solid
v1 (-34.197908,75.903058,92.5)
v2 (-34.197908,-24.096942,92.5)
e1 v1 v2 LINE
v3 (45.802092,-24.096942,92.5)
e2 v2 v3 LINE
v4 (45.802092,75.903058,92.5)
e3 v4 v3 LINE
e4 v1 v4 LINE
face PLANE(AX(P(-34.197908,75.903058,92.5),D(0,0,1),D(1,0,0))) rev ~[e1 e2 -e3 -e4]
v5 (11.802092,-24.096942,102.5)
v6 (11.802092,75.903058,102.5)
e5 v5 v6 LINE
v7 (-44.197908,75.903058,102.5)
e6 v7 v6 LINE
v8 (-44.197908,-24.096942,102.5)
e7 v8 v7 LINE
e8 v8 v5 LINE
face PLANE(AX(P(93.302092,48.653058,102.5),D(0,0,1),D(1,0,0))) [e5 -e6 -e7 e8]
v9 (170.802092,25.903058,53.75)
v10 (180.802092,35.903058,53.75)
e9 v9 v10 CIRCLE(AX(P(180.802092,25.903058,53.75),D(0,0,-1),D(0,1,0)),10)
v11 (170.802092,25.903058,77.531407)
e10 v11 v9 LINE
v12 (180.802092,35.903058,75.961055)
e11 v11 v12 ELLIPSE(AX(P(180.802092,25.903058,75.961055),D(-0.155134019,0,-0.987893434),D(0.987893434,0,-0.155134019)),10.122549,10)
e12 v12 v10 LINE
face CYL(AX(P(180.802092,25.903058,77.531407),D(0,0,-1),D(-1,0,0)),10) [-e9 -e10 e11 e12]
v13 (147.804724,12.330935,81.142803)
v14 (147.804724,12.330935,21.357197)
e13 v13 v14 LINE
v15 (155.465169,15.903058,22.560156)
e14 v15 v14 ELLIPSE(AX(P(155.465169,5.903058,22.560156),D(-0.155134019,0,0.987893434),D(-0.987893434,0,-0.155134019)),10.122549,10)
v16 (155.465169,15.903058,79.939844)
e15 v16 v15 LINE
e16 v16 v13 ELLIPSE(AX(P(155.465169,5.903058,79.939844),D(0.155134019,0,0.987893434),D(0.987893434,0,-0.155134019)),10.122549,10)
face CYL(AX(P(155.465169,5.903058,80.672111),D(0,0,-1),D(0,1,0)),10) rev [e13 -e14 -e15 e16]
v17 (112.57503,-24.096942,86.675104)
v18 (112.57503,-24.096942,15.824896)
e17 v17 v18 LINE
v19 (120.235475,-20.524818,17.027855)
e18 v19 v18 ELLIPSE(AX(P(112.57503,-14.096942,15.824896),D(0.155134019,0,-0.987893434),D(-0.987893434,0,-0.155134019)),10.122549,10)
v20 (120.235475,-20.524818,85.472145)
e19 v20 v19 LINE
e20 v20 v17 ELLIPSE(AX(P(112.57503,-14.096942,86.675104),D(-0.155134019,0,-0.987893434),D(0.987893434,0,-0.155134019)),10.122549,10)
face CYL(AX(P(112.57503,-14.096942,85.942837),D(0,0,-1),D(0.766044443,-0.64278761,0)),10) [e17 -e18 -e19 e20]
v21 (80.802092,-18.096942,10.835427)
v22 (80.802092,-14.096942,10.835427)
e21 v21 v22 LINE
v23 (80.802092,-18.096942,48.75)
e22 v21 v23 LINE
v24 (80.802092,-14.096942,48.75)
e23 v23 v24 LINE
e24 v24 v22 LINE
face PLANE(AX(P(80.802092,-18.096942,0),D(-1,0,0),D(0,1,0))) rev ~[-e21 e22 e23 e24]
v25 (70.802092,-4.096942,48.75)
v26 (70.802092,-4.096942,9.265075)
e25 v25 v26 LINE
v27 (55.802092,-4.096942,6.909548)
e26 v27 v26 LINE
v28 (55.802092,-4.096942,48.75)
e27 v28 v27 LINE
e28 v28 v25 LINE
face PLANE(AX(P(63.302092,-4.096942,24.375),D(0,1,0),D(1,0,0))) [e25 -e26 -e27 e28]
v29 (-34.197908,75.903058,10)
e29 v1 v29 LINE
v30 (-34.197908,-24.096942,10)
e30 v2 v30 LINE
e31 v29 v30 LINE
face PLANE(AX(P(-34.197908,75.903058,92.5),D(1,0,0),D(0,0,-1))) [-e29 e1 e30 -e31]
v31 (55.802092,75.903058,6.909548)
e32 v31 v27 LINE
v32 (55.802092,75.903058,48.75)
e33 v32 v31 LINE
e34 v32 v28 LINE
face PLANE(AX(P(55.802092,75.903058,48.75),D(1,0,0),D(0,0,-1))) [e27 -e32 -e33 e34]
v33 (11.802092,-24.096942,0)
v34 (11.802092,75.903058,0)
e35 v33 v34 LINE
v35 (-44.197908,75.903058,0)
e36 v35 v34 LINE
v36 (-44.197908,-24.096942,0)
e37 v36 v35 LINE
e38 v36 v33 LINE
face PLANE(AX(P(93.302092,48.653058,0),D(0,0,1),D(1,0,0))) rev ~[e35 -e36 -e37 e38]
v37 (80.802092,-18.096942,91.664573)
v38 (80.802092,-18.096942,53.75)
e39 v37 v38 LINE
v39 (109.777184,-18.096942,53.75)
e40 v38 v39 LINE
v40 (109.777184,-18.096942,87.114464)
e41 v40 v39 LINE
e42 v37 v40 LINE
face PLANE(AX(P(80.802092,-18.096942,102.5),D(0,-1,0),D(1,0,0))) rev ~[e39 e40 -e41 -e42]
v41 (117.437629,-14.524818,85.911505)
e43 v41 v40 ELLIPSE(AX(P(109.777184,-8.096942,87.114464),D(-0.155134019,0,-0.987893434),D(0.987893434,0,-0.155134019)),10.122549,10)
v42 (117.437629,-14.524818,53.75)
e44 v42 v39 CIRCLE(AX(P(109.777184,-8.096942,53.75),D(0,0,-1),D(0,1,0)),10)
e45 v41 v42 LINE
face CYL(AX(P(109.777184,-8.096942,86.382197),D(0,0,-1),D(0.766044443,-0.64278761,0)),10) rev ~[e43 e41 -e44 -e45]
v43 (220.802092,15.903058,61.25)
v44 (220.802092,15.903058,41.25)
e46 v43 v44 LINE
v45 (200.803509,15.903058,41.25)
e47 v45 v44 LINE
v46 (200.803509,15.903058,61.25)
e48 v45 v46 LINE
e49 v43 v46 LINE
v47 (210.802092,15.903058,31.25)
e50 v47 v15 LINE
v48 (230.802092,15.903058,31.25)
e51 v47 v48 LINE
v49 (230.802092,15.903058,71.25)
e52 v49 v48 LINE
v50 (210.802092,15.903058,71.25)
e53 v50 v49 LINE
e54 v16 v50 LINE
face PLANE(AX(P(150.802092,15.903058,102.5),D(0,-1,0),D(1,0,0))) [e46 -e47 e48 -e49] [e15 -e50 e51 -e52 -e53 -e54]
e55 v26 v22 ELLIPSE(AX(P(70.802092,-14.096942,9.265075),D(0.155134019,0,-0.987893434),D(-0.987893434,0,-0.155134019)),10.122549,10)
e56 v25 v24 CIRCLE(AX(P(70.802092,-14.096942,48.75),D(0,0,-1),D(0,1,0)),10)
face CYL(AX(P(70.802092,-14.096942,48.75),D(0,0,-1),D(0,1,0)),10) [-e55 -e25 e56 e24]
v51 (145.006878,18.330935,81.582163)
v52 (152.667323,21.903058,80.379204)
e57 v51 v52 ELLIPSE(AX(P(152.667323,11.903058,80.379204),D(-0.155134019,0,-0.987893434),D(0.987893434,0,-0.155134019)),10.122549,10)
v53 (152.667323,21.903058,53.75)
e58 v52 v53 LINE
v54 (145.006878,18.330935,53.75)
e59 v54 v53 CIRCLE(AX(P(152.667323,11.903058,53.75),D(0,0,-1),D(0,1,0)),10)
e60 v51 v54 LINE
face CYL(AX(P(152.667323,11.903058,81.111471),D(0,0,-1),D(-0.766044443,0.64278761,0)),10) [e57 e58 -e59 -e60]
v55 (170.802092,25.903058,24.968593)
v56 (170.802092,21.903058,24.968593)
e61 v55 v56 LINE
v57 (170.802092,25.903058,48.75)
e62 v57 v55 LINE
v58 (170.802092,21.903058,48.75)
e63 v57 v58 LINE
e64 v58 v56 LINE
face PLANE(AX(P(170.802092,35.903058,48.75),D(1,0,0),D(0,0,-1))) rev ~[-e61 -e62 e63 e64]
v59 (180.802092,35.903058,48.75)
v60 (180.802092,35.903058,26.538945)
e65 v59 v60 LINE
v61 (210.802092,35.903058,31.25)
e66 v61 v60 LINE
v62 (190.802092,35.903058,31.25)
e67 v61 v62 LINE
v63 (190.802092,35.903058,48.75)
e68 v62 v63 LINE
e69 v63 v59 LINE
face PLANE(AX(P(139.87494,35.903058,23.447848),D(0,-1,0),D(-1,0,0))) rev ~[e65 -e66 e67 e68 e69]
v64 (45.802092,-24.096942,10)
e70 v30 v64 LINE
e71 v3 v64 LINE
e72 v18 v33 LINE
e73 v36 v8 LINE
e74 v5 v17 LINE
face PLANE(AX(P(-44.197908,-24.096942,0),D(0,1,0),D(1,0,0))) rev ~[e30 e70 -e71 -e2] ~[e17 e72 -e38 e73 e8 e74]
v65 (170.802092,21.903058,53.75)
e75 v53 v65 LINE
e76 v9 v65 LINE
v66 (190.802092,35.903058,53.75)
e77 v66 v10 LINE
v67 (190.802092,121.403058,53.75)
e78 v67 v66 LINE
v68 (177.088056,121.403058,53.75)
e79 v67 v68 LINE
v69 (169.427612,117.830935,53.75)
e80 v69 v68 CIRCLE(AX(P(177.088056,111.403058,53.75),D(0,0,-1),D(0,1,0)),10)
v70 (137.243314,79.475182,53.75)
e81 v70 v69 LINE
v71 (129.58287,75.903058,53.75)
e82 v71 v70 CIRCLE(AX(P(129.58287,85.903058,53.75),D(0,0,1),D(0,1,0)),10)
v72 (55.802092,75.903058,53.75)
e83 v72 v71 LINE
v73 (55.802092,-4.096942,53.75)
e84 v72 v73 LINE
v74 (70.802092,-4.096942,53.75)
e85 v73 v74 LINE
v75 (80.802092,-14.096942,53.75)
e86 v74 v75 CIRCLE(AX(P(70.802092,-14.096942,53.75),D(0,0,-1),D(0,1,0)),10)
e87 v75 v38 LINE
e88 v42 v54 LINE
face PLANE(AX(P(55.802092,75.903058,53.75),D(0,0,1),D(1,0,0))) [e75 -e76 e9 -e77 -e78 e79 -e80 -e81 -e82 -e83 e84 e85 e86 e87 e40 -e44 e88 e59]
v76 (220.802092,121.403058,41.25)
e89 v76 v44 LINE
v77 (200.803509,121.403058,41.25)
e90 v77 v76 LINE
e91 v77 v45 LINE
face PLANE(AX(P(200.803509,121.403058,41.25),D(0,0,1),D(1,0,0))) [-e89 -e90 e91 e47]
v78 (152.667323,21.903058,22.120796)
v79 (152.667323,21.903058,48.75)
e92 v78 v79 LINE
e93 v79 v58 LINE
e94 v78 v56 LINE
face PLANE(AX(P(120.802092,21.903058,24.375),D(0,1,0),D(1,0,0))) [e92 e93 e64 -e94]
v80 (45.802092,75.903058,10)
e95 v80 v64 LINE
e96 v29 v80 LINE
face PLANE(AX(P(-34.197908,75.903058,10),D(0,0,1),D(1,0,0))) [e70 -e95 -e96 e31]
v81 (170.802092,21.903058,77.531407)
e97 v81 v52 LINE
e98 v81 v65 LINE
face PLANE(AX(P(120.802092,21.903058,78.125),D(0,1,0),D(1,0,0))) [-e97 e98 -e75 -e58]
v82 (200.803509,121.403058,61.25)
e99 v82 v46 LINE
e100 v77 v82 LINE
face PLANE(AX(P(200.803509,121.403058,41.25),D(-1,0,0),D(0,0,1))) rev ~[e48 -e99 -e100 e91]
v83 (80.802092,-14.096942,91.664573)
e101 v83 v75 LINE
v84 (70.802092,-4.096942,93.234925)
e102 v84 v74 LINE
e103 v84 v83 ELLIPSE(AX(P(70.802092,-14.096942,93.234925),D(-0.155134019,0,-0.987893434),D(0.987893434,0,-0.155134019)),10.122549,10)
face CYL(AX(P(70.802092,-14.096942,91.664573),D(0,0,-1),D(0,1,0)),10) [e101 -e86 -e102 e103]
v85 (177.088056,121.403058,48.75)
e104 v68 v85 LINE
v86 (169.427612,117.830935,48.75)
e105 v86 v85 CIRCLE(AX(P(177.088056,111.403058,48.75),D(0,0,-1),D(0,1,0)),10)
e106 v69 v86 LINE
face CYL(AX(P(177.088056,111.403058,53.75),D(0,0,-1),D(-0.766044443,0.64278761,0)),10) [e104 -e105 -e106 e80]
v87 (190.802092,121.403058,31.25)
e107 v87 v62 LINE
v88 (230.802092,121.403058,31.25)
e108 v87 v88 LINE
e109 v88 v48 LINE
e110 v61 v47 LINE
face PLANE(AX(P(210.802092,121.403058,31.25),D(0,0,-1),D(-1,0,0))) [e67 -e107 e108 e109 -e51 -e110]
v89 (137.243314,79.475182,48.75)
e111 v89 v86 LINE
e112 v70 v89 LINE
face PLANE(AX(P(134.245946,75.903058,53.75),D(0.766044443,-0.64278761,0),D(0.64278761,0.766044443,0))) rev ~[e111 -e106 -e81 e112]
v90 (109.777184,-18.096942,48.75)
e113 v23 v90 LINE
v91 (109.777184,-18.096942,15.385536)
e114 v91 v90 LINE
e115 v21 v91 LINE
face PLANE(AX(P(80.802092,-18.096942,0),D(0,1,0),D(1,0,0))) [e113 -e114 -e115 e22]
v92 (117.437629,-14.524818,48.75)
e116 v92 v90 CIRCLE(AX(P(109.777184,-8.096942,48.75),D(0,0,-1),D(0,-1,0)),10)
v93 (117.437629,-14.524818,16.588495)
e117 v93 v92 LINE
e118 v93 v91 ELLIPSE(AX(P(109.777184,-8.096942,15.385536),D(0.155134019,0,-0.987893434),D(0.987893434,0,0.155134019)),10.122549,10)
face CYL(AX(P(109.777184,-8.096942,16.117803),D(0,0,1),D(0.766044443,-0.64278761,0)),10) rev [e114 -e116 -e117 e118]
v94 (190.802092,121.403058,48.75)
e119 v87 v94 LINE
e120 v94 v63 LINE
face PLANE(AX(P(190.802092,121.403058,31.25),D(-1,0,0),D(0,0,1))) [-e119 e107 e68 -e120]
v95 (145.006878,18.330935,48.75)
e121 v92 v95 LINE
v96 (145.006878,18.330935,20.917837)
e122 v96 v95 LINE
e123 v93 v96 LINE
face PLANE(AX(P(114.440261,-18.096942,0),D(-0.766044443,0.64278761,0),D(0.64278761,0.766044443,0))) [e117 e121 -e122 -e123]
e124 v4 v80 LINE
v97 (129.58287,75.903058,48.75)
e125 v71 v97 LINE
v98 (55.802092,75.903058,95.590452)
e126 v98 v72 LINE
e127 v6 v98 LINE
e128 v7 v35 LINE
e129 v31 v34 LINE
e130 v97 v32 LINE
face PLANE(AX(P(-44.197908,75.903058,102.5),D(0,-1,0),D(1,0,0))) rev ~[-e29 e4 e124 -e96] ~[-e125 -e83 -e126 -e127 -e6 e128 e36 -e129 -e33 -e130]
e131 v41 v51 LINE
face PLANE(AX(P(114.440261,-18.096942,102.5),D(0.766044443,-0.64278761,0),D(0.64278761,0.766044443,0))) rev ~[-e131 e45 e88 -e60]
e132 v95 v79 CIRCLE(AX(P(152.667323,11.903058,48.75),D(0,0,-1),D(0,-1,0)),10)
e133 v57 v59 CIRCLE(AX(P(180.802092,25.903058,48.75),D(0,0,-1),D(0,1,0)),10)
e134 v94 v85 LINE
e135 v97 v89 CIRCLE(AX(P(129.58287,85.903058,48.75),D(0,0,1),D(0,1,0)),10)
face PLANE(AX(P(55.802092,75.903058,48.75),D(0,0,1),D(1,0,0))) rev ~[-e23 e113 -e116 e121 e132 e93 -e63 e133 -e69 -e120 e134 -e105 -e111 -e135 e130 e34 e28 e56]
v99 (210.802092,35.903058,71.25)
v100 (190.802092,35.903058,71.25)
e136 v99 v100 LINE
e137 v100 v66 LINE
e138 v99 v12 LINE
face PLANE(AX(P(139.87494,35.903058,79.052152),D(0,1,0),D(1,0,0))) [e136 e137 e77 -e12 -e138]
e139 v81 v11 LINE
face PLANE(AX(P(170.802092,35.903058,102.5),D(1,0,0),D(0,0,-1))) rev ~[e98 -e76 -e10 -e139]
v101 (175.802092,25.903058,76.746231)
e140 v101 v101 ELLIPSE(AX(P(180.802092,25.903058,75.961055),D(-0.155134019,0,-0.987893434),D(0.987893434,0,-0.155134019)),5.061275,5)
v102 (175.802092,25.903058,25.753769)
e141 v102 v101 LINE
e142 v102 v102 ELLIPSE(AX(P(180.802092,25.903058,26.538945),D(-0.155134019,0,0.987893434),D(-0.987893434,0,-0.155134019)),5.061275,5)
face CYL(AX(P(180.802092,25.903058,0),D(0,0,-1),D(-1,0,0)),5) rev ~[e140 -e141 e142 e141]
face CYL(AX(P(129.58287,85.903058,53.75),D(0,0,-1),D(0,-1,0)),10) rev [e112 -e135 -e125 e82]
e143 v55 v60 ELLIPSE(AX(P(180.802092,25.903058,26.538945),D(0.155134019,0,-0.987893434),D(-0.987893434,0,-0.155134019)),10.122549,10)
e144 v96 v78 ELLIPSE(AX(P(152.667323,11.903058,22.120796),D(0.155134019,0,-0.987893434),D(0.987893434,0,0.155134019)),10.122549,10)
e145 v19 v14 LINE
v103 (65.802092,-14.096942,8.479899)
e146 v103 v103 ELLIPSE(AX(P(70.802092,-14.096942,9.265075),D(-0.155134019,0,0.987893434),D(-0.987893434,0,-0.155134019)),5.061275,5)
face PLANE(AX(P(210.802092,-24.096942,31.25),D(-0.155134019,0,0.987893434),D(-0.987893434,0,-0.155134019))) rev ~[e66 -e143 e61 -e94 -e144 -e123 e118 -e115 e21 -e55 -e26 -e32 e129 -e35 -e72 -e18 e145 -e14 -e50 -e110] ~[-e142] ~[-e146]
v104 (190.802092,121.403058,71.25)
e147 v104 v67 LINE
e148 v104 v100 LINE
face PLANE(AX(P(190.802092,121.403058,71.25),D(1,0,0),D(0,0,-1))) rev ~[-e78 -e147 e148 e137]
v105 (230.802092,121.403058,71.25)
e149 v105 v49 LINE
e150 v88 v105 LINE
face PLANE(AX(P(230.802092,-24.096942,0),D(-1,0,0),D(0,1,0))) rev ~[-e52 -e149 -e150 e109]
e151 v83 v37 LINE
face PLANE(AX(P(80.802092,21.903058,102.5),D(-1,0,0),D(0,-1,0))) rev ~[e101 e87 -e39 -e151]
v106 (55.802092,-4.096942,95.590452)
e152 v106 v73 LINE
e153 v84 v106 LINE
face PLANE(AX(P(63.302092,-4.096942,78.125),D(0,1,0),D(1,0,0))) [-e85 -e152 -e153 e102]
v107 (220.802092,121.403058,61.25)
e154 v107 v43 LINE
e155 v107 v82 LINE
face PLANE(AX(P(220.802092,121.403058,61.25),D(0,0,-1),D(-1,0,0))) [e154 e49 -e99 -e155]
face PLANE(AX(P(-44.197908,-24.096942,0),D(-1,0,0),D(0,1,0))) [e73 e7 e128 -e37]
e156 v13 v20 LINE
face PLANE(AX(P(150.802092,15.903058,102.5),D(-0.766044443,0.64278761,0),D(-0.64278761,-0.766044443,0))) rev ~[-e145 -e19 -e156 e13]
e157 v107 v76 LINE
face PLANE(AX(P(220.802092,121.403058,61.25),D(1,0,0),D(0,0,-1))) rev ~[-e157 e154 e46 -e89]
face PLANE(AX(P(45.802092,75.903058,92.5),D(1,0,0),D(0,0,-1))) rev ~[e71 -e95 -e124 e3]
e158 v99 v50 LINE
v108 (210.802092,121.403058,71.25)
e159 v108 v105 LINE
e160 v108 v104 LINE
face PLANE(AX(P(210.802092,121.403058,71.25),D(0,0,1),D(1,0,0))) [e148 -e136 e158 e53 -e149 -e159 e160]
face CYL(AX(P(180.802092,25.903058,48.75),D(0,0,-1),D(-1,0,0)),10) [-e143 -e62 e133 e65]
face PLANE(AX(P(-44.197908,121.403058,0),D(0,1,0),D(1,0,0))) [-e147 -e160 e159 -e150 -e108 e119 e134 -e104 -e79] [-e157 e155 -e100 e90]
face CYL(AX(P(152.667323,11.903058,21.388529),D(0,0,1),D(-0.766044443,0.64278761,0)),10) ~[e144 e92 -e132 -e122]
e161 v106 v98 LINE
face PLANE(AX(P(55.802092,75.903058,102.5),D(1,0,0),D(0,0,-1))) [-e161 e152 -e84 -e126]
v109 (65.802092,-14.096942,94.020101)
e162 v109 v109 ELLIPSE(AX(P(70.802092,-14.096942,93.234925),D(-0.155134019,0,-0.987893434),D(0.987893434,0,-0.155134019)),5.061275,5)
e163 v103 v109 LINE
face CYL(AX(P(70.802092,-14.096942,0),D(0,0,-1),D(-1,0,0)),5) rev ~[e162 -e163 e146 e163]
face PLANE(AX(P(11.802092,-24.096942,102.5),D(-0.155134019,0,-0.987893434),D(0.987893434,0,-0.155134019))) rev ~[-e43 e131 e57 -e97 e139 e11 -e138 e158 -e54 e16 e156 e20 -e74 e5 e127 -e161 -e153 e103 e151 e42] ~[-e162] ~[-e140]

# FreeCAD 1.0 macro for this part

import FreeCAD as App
import Part
import Sketcher
from FreeCAD import Vector
Q = App.Units.Quantity


def edges_at(feature, points):
    """Names of the edges that pass closest to the given points."""
    edges = feature.Shape.Edges
    near = lambda p: min(range(len(edges)), key=lambda i: edges[i].distToShape(Part.Vertex(*p))[0])
    return sorted({f"Edge{near(p) + 1}" for p in points})

doc = App.newDocument("Part")
body = doc.addObject("PartDesign::Body", "Body")

sketch1 = doc.addObject("Sketcher::SketchObject", "Sketch")
body.addObject(sketch1)
sketch1.AttachmentSupport = (doc.XY_Plane, [""])
sketch1.MapMode = "FlatFace"
sketch1.addGeometry([
    Part.LineSegment(Vector(-44.197908, 121.403058, 0), Vector(-44.197908, -24.096942, 0)),
    Part.LineSegment(Vector(-44.197908, -24.096942, 0), Vector(230.802092, -24.096942, 0)),
    Part.LineSegment(Vector(230.802092, -24.096942, 0), Vector(230.802092, 121.403058, 0)),
    Part.LineSegment(Vector(230.802092, 121.403058, 0), Vector(-44.197908, 121.403058, 0)),
], False)
sketch1.addConstraint([
    Sketcher.Constraint("Coincident", 0, 2, 1, 1),
    Sketcher.Constraint("Coincident", 1, 2, 2, 1),
    Sketcher.Constraint("Coincident", 2, 2, 3, 1),
    Sketcher.Constraint("Coincident", 3, 2, 0, 1),
    Sketcher.Constraint("Vertical", 0),
    Sketcher.Constraint("Horizontal", 1),
    Sketcher.Constraint("Vertical", 2),
    Sketcher.Constraint("Horizontal", 3),
    Sketcher.Constraint("DistanceX", 1, 1, 1, 2, Q("275 mm")),
    Sketcher.Constraint("DistanceY", 0, 2, 0, 1, Q("145.5 mm")),
    Sketcher.Constraint("DistanceY", 0, 2, -1, 1, Q("24.096942 mm")),
    Sketcher.Constraint("DistanceX", 0, 2, -1, 1, Q("44.197908 mm")),
])
pad1 = doc.addObject("PartDesign::Pad", "Pad")
body.addObject(pad1)
pad1.Profile = sketch1
pad1.Length = 102.5

sketch2 = doc.addObject("Sketcher::SketchObject", "Sketch001")
body.addObject(sketch2)
sketch2.AttachmentSupport = (doc.XY_Plane, [""])
sketch2.MapMode = "FlatFace"
sketch2.AttachmentOffset = App.Placement(Vector(0, 0, 102.5), App.Rotation())
sketch2.addGeometry([
    Part.LineSegment(Vector(-44.197908, 121.403058, 0), Vector(-44.197908, 75.903058, 0)),
    Part.LineSegment(Vector(-44.197908, 75.903058, 0), Vector(70.802092, 75.903058, 0)),
    Part.LineSegment(Vector(70.802092, 75.903058, 0), Vector(70.802092, 121.403058, 0)),
    Part.LineSegment(Vector(70.802092, 121.403058, 0), Vector(-44.197908, 121.403058, 0)),
    Part.LineSegment(Vector(150.802092, 15.903058, 0), Vector(150.802092, -24.096942, 0)),
    Part.LineSegment(Vector(150.802092, -24.096942, 0), Vector(230.802092, -24.096942, 0)),
    Part.LineSegment(Vector(230.802092, -24.096942, 0), Vector(230.802092, 15.903058, 0)),
    Part.LineSegment(Vector(230.802092, 15.903058, 0), Vector(150.802092, 15.903058, 0)),
], False)
sketch2.addConstraint([
    Sketcher.Constraint("Coincident", 0, 2, 1, 1),
    Sketcher.Constraint("Coincident", 1, 2, 2, 1),
    Sketcher.Constraint("Coincident", 2, 2, 3, 1),
    Sketcher.Constraint("Coincident", 3, 2, 0, 1),
    Sketcher.Constraint("Coincident", 4, 2, 5, 1),
    Sketcher.Constraint("Coincident", 5, 2, 6, 1),
    Sketcher.Constraint("Coincident", 6, 2, 7, 1),
    Sketcher.Constraint("Coincident", 7, 2, 4, 1),
    Sketcher.Constraint("Vertical", 0),
    Sketcher.Constraint("Horizontal", 1),
    Sketcher.Constraint("Vertical", 2),
    Sketcher.Constraint("Horizontal", 3),
    Sketcher.Constraint("Vertical", 4),
    Sketcher.Constraint("Horizontal", 5),
    Sketcher.Constraint("Vertical", 6),
    Sketcher.Constraint("Horizontal", 7),
    Sketcher.Constraint("DistanceX", 1, 1, 1, 2, Q("115 mm")),
    Sketcher.Constraint("DistanceX", 5, 1, 5, 2, Q("80 mm")),
    Sketcher.Constraint("DistanceY", 4, 2, 4, 1, Q("40 mm")),
    Sketcher.Constraint("DistanceY", 0, 2, 0, 1, Q("45.5 mm")),
    Sketcher.Constraint("DistanceX", 1, 2, 4, 2, Q("80 mm")),
    Sketcher.Constraint("DistanceY", 4, 2, 1, 2, Q("100 mm")),
    Sketcher.Constraint("DistanceY", -1, 1, 0, 2, Q("75.903058 mm")),
    Sketcher.Constraint("DistanceX", 0, 2, -1, 1, Q("44.197908 mm")),
])
pocket1 = doc.addObject("PartDesign::Pocket", "Pocket")
body.addObject(pocket1)
pocket1.Profile = sketch2
pocket1.Length = 102.5

sketch3 = doc.addObject("Sketcher::SketchObject", "Sketch002")
body.addObject(sketch3)
sketch3.AttachmentSupport = (doc.XZ_Plane, [""])
sketch3.MapMode = "FlatFace"
sketch3.AttachmentOffset = App.Placement(Vector(0, 0, -75.903058), App.Rotation())
sketch3.addGeometry([
    Part.LineSegment(Vector(-34.197908, 10, 0), Vector(-34.197908, 92.5, 0)),
    Part.LineSegment(Vector(-34.197908, 92.5, 0), Vector(45.802092, 92.5, 0)),
    Part.LineSegment(Vector(45.802092, 92.5, 0), Vector(45.802092, 10, 0)),
    Part.LineSegment(Vector(45.802092, 10, 0), Vector(-34.197908, 10, 0)),
], False)
sketch3.addConstraint([
    Sketcher.Constraint("Coincident", 0, 2, 1, 1),
    Sketcher.Constraint("Coincident", 1, 2, 2, 1),
    Sketcher.Constraint("Coincident", 2, 2, 3, 1),
    Sketcher.Constraint("Coincident", 3, 2, 0, 1),
    Sketcher.Constraint("Vertical", 0),
    Sketcher.Constraint("Horizontal", 1),
    Sketcher.Constraint("Vertical", 2),
    Sketcher.Constraint("Horizontal", 3),
    Sketcher.Constraint("DistanceX", 1, 1, 1, 2, Q("80 mm")),
    Sketcher.Constraint("DistanceY", 0, 1, 0, 2, Q("82.5 mm")),
    Sketcher.Constraint("DistanceY", -1, 1, 2, 2, Q("10 mm")),
    Sketcher.Constraint("DistanceX", 0, 2, -1, 1, Q("34.197908 mm")),
])
pocket2 = doc.addObject("PartDesign::Pocket", "Pocket001")
body.addObject(pocket2)
pocket2.Profile = sketch3
pocket2.Length = 100
pocket2.Reversed = True

sketch4 = doc.addObject("Sketcher::SketchObject", "Sketch003")
body.addObject(sketch4)
sketch4.AttachmentSupport = (doc.XZ_Plane, [""])
sketch4.MapMode = "FlatFace"
sketch4.AttachmentOffset = App.Placement(Vector(0, 0, -121.403058), App.Rotation())
sketch4.addGeometry([
    Part.LineSegment(Vector(200.803509, 41.25, 0), Vector(200.803509, 61.25, 0)),
    Part.LineSegment(Vector(200.803509, 61.25, 0), Vector(220.802092, 61.25, 0)),
    Part.LineSegment(Vector(220.802092, 61.25, 0), Vector(220.802092, 41.25, 0)),
    Part.LineSegment(Vector(220.802092, 41.25, 0), Vector(200.803509, 41.25, 0)),
], False)
sketch4.addConstraint([
    Sketcher.Constraint("Coincident", 0, 2, 1, 1),
    Sketcher.Constraint("Coincident", 1, 2, 2, 1),
    Sketcher.Constraint("Coincident", 2, 2, 3, 1),
    Sketcher.Constraint("Coincident", 3, 2, 0, 1),
    Sketcher.Constraint("Vertical", 0),
    Sketcher.Constraint("Horizontal", 1),
    Sketcher.Constraint("Vertical", 2),
    Sketcher.Constraint("Horizontal", 3),
    Sketcher.Constraint("DistanceY", 0, 1, 0, 2, Q("20 mm")),
    Sketcher.Constraint("DistanceY", -1, 1, 0, 2, Q("61.25 mm")),
    Sketcher.Constraint("DistanceX", 1, 1, 1, 2, Q("19.998583 mm")),
    Sketcher.Constraint("DistanceX", -1, 1, 0, 2, Q("200.803509 mm")),
])
pocket3 = doc.addObject("PartDesign::Pocket", "Pocket002")
body.addObject(pocket3)
pocket3.Profile = sketch4
pocket3.Length = 105.5
pocket3.Reversed = True

sketch5 = doc.addObject("Sketcher::SketchObject", "Sketch004")
body.addObject(sketch5)
sketch5.AttachmentSupport = (doc.XZ_Plane, [""])
sketch5.MapMode = "FlatFace"
sketch5.AttachmentOffset = App.Placement(Vector(0, 0, -121.403058), App.Rotation())
sketch5.addGeometry([
    Part.LineSegment(Vector(210.802092, 0, 0), Vector(210.802092, 31.25, 0)),
    Part.LineSegment(Vector(210.802092, 31.25, 0), Vector(230.802092, 31.25, 0)),
    Part.LineSegment(Vector(230.802092, 31.25, 0), Vector(230.802092, 0, 0)),
    Part.LineSegment(Vector(230.802092, 0, 0), Vector(210.802092, 0, 0)),
    Part.LineSegment(Vector(210.802092, 71.25, 0), Vector(210.802092, 102.838653, 0)),
    Part.LineSegment(Vector(210.802092, 102.838653, 0), Vector(230.802092, 102.838653, 0)),
    Part.LineSegment(Vector(230.802092, 102.838653, 0), Vector(230.802092, 71.25, 0)),
    Part.LineSegment(Vector(230.802092, 71.25, 0), Vector(210.802092, 71.25, 0)),
], False)
sketch5.addConstraint([
    Sketcher.Constraint("Coincident", 0, 2, 1, 1),
    Sketcher.Constraint("Coincident", 1, 2, 2, 1),
    Sketcher.Constraint("Coincident", 2, 2, 3, 1),
    Sketcher.Constraint("Coincident", 3, 2, 0, 1),
    Sketcher.Constraint("Coincident", 4, 2, 5, 1),
    Sketcher.Constraint("Coincident", 5, 2, 6, 1),
    Sketcher.Constraint("Coincident", 6, 2, 7, 1),
    Sketcher.Constraint("Coincident", 7, 2, 4, 1),
    Sketcher.Constraint("Vertical", 0),
    Sketcher.Constraint("Horizontal", 1),
    Sketcher.Constraint("Vertical", 2),
    Sketcher.Constraint("Horizontal", 3),
    Sketcher.Constraint("Vertical", 4),
    Sketcher.Constraint("Horizontal", 5),
    Sketcher.Constraint("Vertical", 6),
    Sketcher.Constraint("Horizontal", 7),
    Sketcher.Constraint("PointOnObject", 2, 2, -1),
    Sketcher.Constraint("Vertical", 3, 2, 4, 2),
    Sketcher.Constraint("Vertical", 2, 2, 5, 2),
    Sketcher.Constraint("DistanceX", 1, 1, 1, 2, Q("20 mm")),
    Sketcher.Constraint("DistanceY", 1, 2, 6, 2, Q("40 mm")),
    Sketcher.Constraint("DistanceY", 0, 1, 0, 2, Q("31.25 mm")),
    Sketcher.Constraint("DistanceY", 4, 1, 4, 2, Q("31.588653 mm")),
    Sketcher.Constraint("DistanceX", -1, 1, 0, 2, Q("210.802092 mm")),
])
pocket4 = doc.addObject("PartDesign::Pocket", "Pocket003")
body.addObject(pocket4)
pocket4.Profile = sketch5
pocket4.Length = 105.5
pocket4.Reversed = True

sketch6 = doc.addObject("Sketcher::SketchObject", "Sketch005")
body.addObject(sketch6)
sketch6.AttachmentSupport = (doc.XZ_Plane, [""])
sketch6.MapMode = "FlatFace"
sketch6.AttachmentOffset = App.Placement(Vector(0, 0, -121.403058), App.Rotation())
sketch6.addGeometry([
    Part.LineSegment(Vector(190.802092, 48.75, 0), Vector(190.802092, 31.25, 0)),
    Part.LineSegment(Vector(190.802092, 31.25, 0), Vector(210.802092, 31.25, 0)),
    Part.LineSegment(Vector(210.802092, 31.25, 0), Vector(210.802092, 0, 0)),
    Part.LineSegment(Vector(210.802092, 0, 0), Vector(70.802092, 0, 0)),
    Part.LineSegment(Vector(70.802092, 0, 0), Vector(70.802092, 48.75, 0)),
    Part.LineSegment(Vector(70.802092, 48.75, 0), Vector(190.802092, 48.75, 0)),
    Part.LineSegment(Vector(190.802092, 71.25, 0), Vector(190.802092, 53.75, 0)),
    Part.LineSegment(Vector(190.802092, 53.75, 0), Vector(70.802092, 53.75, 0)),
    Part.LineSegment(Vector(70.802092, 53.75, 0), Vector(70.802092, 102.5, 0)),
    Part.LineSegment(Vector(70.802092, 102.5, 0), Vector(210.802092, 102.5, 0)),
    Part.LineSegment(Vector(210.802092, 102.5, 0), Vector(210.802092, 71.25, 0)),
    Part.LineSegment(Vector(210.802092, 71.25, 0), Vector(190.802092, 71.25, 0)),
], False)
sketch6.addConstraint([
    Sketcher.Constraint("Coincident", 0, 2, 1, 1),
    Sketcher.Constraint("Coincident", 1, 2, 2, 1),
    Sketcher.Constraint("Coincident", 2, 2, 3, 1),
    Sketcher.Constraint("Coincident", 3, 2, 4, 1),
    Sketcher.Constraint("Coincident", 4, 2, 5, 1),
    Sketcher.Constraint("Coincident", 5, 2, 0, 1),
    Sketcher.Constraint("Coincident", 6, 2, 7, 1),
    Sketcher.Constraint("Coincident", 7, 2, 8, 1),
    Sketcher.Constraint("Coincident", 8, 2, 9, 1),
    Sketcher.Constraint("Coincident", 9, 2, 10, 1),
    Sketcher.Constraint("Coincident", 10, 2, 11, 1),
    Sketcher.Constraint("Coincident", 11, 2, 6, 1),
    Sketcher.Constraint("Vertical", 0),
    Sketcher.Constraint("Horizontal", 1),
    Sketcher.Constraint("Vertical", 2),
    Sketcher.Constraint("Horizontal", 3),
    Sketcher.Constraint("Vertical", 4),
    Sketcher.Constraint("Horizontal", 5),
    Sketcher.Constraint("Vertical", 6),
    Sketcher.Constraint("Horizontal", 7),
    Sketcher.Constraint("Vertical", 8),
    Sketcher.Constraint("Horizontal", 9),
    Sketcher.Constraint("Vertical", 10),
    Sketcher.Constraint("Horizontal", 11),
    Sketcher.Constraint("PointOnObject", 2, 2, -1),
    Sketcher.Constraint("Vertical", 5, 2, 6, 2),
    Sketcher.Constraint("Vertical", 4, 2, 7, 2),
    Sketcher.Constraint("Vertical", 2, 2, 9, 2),
    Sketcher.Constraint("Equal", 0, 6),
    Sketcher.Constraint("Equal", 4, 8),
    Sketcher.Constraint("DistanceX", 1, 1, 1, 2, Q("20 mm")),
    Sketcher.Constraint("DistanceX", 3, 2, 3, 1, Q("140 mm")),
    Sketcher.Constraint("DistanceY", 0, 2, 0, 1, Q("17.5 mm")),
    Sketcher.Constraint("DistanceY", 5, 2, 6, 2, Q("5 mm")),
    Sketcher.Constraint("DistanceY", 2, 2, 2, 1, Q("31.25 mm")),
    Sketcher.Constraint("DistanceX", -1, 1, 0, 2, Q("190.802092 mm")),
])
pocket5 = doc.addObject("PartDesign::Pocket", "Pocket004")
body.addObject(pocket5)
pocket5.Profile = sketch6
pocket5.Length = 85.5
pocket5.Reversed = True

sketch7 = doc.addObject("Sketcher::SketchObject", "Sketch006")
body.addObject(sketch7)
sketch7.AttachmentSupport = (doc.XZ_Plane, [""])
sketch7.MapMode = "FlatFace"
sketch7.AttachmentOffset = App.Placement(Vector(0, 0, -35.903058), App.Rotation())
sketch7.addGeometry([
    Part.LineSegment(Vector(70.802092, 53.75, 0), Vector(70.802092, 102.5, 0)),
    Part.LineSegment(Vector(70.802092, 102.5, 0), Vector(170.802092, 102.5, 0)),
    Part.LineSegment(Vector(170.802092, 102.5, 0), Vector(170.802092, 53.75, 0)),
    Part.LineSegment(Vector(170.802092, 53.75, 0), Vector(70.802092, 53.75, 0)),
], False)
sketch7.addConstraint([
    Sketcher.Constraint("Coincident", 0, 2, 1, 1),
    Sketcher.Constraint("Coincident", 1, 2, 2, 1),
    Sketcher.Constraint("Coincident", 2, 2, 3, 1),
    Sketcher.Constraint("Coincident", 3, 2, 0, 1),
    Sketcher.Constraint("Vertical", 0),
    Sketcher.Constraint("Horizontal", 1),
    Sketcher.Constraint("Vertical", 2),
    Sketcher.Constraint("Horizontal", 3),
    Sketcher.Constraint("DistanceX", 1, 1, 1, 2, Q("100 mm")),
    Sketcher.Constraint("DistanceY", 0, 1, 0, 2, Q("48.75 mm")),
    Sketcher.Constraint("DistanceY", -1, 1, 0, 2, Q("102.5 mm")),
    Sketcher.Constraint("DistanceX", -1, 1, 0, 2, Q("70.802092 mm")),
])
pocket6 = doc.addObject("PartDesign::Pocket", "Pocket005")
body.addObject(pocket6)
pocket6.Profile = sketch7
pocket6.Length = 14
pocket6.Reversed = True

sketch8 = doc.addObject("Sketcher::SketchObject", "Sketch007")
body.addObject(sketch8)
sketch8.AttachmentSupport = (doc.XZ_Plane, [""])
sketch8.MapMode = "FlatFace"
sketch8.AttachmentOffset = App.Placement(Vector(0, 0, -35.903058), App.Rotation())
sketch8.addGeometry([
    Part.LineSegment(Vector(70.802092, 0, 0), Vector(70.802092, 48.75, 0)),
    Part.LineSegment(Vector(70.802092, 48.75, 0), Vector(170.802092, 48.75, 0)),
    Part.LineSegment(Vector(170.802092, 48.75, 0), Vector(170.802092, 0, 0)),
    Part.LineSegment(Vector(170.802092, 0, 0), Vector(70.802092, 0, 0)),
], False)
sketch8.addConstraint([
    Sketcher.Constraint("Coincident", 0, 2, 1, 1),
    Sketcher.Constraint("Coincident", 1, 2, 2, 1),
    Sketcher.Constraint("Coincident", 2, 2, 3, 1),
    Sketcher.Constraint("Coincident", 3, 2, 0, 1),
    Sketcher.Constraint("Vertical", 0),
    Sketcher.Constraint("Horizontal", 1),
    Sketcher.Constraint("Vertical", 2),
    Sketcher.Constraint("Horizontal", 3),
    Sketcher.Constraint("PointOnObject", 2, 2, -1),
    Sketcher.Constraint("DistanceX", 1, 1, 1, 2, Q("100 mm")),
    Sketcher.Constraint("DistanceY", 0, 1, 0, 2, Q("48.75 mm")),
    Sketcher.Constraint("DistanceX", -1, 1, 0, 2, Q("70.802092 mm")),
])
pocket7 = doc.addObject("PartDesign::Pocket", "Pocket006")
body.addObject(pocket7)
pocket7.Profile = sketch8
pocket7.Length = 14
pocket7.Reversed = True

sketch9 = doc.addObject("Sketcher::SketchObject", "Sketch008")
body.addObject(sketch9)
sketch9.AttachmentSupport = (doc.XZ_Plane, [""])
sketch9.MapMode = "FlatFace"
sketch9.AttachmentOffset = App.Placement(Vector(0, 0, -21.903058), App.Rotation())
sketch9.addGeometry([
    Part.LineSegment(Vector(70.802092, 53.75, 0), Vector(70.802092, 102.5, 0)),
    Part.LineSegment(Vector(70.802092, 102.5, 0), Vector(80.802092, 102.5, 0)),
    Part.LineSegment(Vector(80.802092, 102.5, 0), Vector(80.802092, 53.75, 0)),
    Part.LineSegment(Vector(80.802092, 53.75, 0), Vector(70.802092, 53.75, 0)),
], False)
sketch9.addConstraint([
    Sketcher.Constraint("Coincident", 0, 2, 1, 1),
    Sketcher.Constraint("Coincident", 1, 2, 2, 1),
    Sketcher.Constraint("Coincident", 2, 2, 3, 1),
    Sketcher.Constraint("Coincident", 3, 2, 0, 1),
    Sketcher.Constraint("Vertical", 0),
    Sketcher.Constraint("Horizontal", 1),
    Sketcher.Constraint("Vertical", 2),
    Sketcher.Constraint("Horizontal", 3),
    Sketcher.Constraint("DistanceX", 1, 1, 1, 2, Q("10 mm")),
    Sketcher.Constraint("DistanceY", 0, 1, 0, 2, Q("48.75 mm")),
    Sketcher.Constraint("DistanceY", -1, 1, 0, 2, Q("102.5 mm")),
    Sketcher.Constraint("DistanceX", -1, 1, 0, 2, Q("70.802092 mm")),
])
pocket8 = doc.addObject("PartDesign::Pocket", "Pocket007")
body.addObject(pocket8)
pocket8.Profile = sketch9
pocket8.Length = 26
pocket8.Reversed = True

sketch10 = doc.addObject("Sketcher::SketchObject", "Sketch009")
body.addObject(sketch10)
sketch10.AttachmentSupport = (doc.XZ_Plane, [""])
sketch10.MapMode = "FlatFace"
sketch10.AttachmentOffset = App.Placement(Vector(0, 0, -21.903058), App.Rotation())
sketch10.addGeometry([
    Part.LineSegment(Vector(70.802092, 0, 0), Vector(70.802092, 48.75, 0)),
    Part.LineSegment(Vector(70.802092, 48.75, 0), Vector(80.802092, 48.75, 0)),
    Part.LineSegment(Vector(80.802092, 48.75, 0), Vector(80.802092, 0, 0)),
    Part.LineSegment(Vector(80.802092, 0, 0), Vector(70.802092, 0, 0)),
], False)
sketch10.addConstraint([
    Sketcher.Constraint("Coincident", 0, 2, 1, 1),
    Sketcher.Constraint("Coincident", 1, 2, 2, 1),
    Sketcher.Constraint("Coincident", 2, 2, 3, 1),
    Sketcher.Constraint("Coincident", 3, 2, 0, 1),
    Sketcher.Constraint("Vertical", 0),
    Sketcher.Constraint("Horizontal", 1),
    Sketcher.Constraint("Vertical", 2),
    Sketcher.Constraint("Horizontal", 3),
    Sketcher.Constraint("PointOnObject", 2, 2, -1),
    Sketcher.Constraint("DistanceX", 1, 1, 1, 2, Q("10 mm")),
    Sketcher.Constraint("DistanceY", 0, 1, 0, 2, Q("48.75 mm")),
    Sketcher.Constraint("DistanceX", -1, 1, 0, 2, Q("70.802092 mm")),
])
pocket9 = doc.addObject("PartDesign::Pocket", "Pocket008")
body.addObject(pocket9)
pocket9.Profile = sketch10
pocket9.Length = 26
pocket9.Reversed = True

sketch11 = doc.addObject("Sketcher::SketchObject", "Sketch010")
body.addObject(sketch11)
sketch11.AttachmentSupport = (doc.XZ_Plane, [""])
sketch11.MapMode = "FlatFace"
sketch11.AttachmentOffset = App.Placement(Vector(0, 0, -75.903058), App.Rotation())
sketch11.addGeometry([
    Part.LineSegment(Vector(55.802092, 53.75, 0), Vector(55.802092, 102.5, 0)),
    Part.LineSegment(Vector(55.802092, 102.5, 0), Vector(70.802092, 102.5, 0)),
    Part.LineSegment(Vector(70.802092, 102.5, 0), Vector(70.802092, 53.75, 0)),
    Part.LineSegment(Vector(70.802092, 53.75, 0), Vector(55.802092, 53.75, 0)),
    Part.LineSegment(Vector(55.802092, 0, 0), Vector(55.802092, 48.75, 0)),
    Part.LineSegment(Vector(55.802092, 48.75, 0), Vector(70.802092, 48.75, 0)),
    Part.LineSegment(Vector(70.802092, 48.75, 0), Vector(70.802092, 0, 0)),
    Part.LineSegment(Vector(70.802092, 0, 0), Vector(55.802092, 0, 0)),
], False)
sketch11.addConstraint([
    Sketcher.Constraint("Coincident", 0, 2, 1, 1),
    Sketcher.Constraint("Coincident", 1, 2, 2, 1),
    Sketcher.Constraint("Coincident", 2, 2, 3, 1),
    Sketcher.Constraint("Coincident", 3, 2, 0, 1),
    Sketcher.Constraint("Coincident", 4, 2, 5, 1),
    Sketcher.Constraint("Coincident", 5, 2, 6, 1),
    Sketcher.Constraint("Coincident", 6, 2, 7, 1),
    Sketcher.Constraint("Coincident", 7, 2, 4, 1),
    Sketcher.Constraint("Vertical", 0),
    Sketcher.Constraint("Horizontal", 1),
    Sketcher.Constraint("Vertical", 2),
    Sketcher.Constraint("Horizontal", 3),
    Sketcher.Constraint("Vertical", 4),
    Sketcher.Constraint("Horizontal", 5),
    Sketcher.Constraint("Vertical", 6),
    Sketcher.Constraint("Horizontal", 7),
    Sketcher.Constraint("PointOnObject", 6, 2, -1),
    Sketcher.Constraint("Vertical", 3, 2, 4, 2),
    Sketcher.Constraint("Vertical", 2, 2, 5, 2),
    Sketcher.Constraint("Equal", 2, 4),
    Sketcher.Constraint("DistanceX", 1, 1, 1, 2, Q("15 mm")),
    Sketcher.Constraint("DistanceY", 4, 2, 3, 2, Q("5 mm")),
    Sketcher.Constraint("DistanceY", 0, 1, 0, 2, Q("48.75 mm")),
    Sketcher.Constraint("DistanceX", -1, 1, 0, 2, Q("55.802092 mm")),
])
pocket10 = doc.addObject("PartDesign::Pocket", "Pocket009")
body.addObject(pocket10)
pocket10.Profile = sketch11
pocket10.Length = 80
pocket10.Reversed = True

sketch12 = doc.addObject("Sketcher::SketchObject", "Sketch011")
body.addObject(sketch12)
sketch12.AttachmentSupport = (doc.XY_Plane, [""])
sketch12.MapMode = "FlatFace"
sketch12.AttachmentOffset = App.Placement(Vector(0, 0, 102.5), App.Rotation())
sketch12.addGeometry([
    Part.LineSegment(Vector(150.802092, 15.903058, 0), Vector(117.238107, -24.096942, 0)),
    Part.LineSegment(Vector(117.238107, -24.096942, 0), Vector(150.802092, -24.096942, 0)),
    Part.LineSegment(Vector(150.802092, -24.096942, 0), Vector(150.802092, 15.903058, 0)),
], False)
sketch12.addConstraint([
    Sketcher.Constraint("Coincident", 0, 2, 1, 1),
    Sketcher.Constraint("Coincident", 1, 2, 2, 1),
    Sketcher.Constraint("Coincident", 2, 2, 0, 1),
    Sketcher.Constraint("Horizontal", 1),
    Sketcher.Constraint("Vertical", 2),
    Sketcher.Constraint("DistanceY", 2, 1, 2, 2, Q("40 mm")),
    Sketcher.Constraint("Angle", 0, Q("-130 deg")),
    Sketcher.Constraint("DistanceY", 0, 2, -1, 1, Q("24.096942 mm")),
    Sketcher.Constraint("DistanceX", -1, 1, 0, 2, Q("117.238107 mm")),
])
pocket11 = doc.addObject("PartDesign::Pocket", "Pocket010")
body.addObject(pocket11)
pocket11.Profile = sketch12
pocket11.Length = 102.5

sketch13 = doc.addObject("Sketcher::SketchObject", "Sketch012")
body.addObject(sketch13)
sketch13.AttachmentSupport = (doc.XY_Plane, [""])
sketch13.MapMode = "FlatFace"
sketch13.AttachmentOffset = App.Placement(Vector(0, 0, 102.5), App.Rotation())
sketch13.addGeometry([
    Part.LineSegment(Vector(80.802092, -18.096942, 0), Vector(114.440261, -18.096942, 0)),
    Part.LineSegment(Vector(114.440261, -18.096942, 0), Vector(148.004246, 21.903058, 0)),
    Part.LineSegment(Vector(148.004246, 21.903058, 0), Vector(80.802092, 21.903058, 0)),
    Part.LineSegment(Vector(80.802092, 21.903058, 0), Vector(80.802092, -18.096942, 0)),
], False)
sketch13.addConstraint([
    Sketcher.Constraint("Coincident", 0, 2, 1, 1),
    Sketcher.Constraint("Coincident", 1, 2, 2, 1),
    Sketcher.Constraint("Coincident", 2, 2, 3, 1),
    Sketcher.Constraint("Coincident", 3, 2, 0, 1),
    Sketcher.Constraint("Horizontal", 0),
    Sketcher.Constraint("Horizontal", 2),
    Sketcher.Constraint("Vertical", 3),
    Sketcher.Constraint("DistanceY", 3, 2, 3, 1, Q("40 mm")),
    Sketcher.Constraint("Angle", 1, Q("50 deg")),
    Sketcher.Constraint("DistanceX", 0, 1, 0, 2, Q("33.638169 mm")),
    Sketcher.Constraint("DistanceX", -1, 1, 0, 2, Q("114.440261 mm")),
    Sketcher.Constraint("DistanceY", 0, 2, -1, 1, Q("18.096942 mm")),
])
pocket12 = doc.addObject("PartDesign::Pocket", "Pocket011")
body.addObject(pocket12)
pocket12.Profile = sketch13
pocket12.Length = 48.75

sketch14 = doc.addObject("Sketcher::SketchObject", "Sketch013")
body.addObject(sketch14)
sketch14.AttachmentSupport = (doc.XY_Plane, [""])
sketch14.MapMode = "FlatFace"
sketch14.addGeometry([
    Part.LineSegment(Vector(80.802092, -18.096942, 0), Vector(80.802092, 21.903058, 0)),
    Part.LineSegment(Vector(80.802092, 21.903058, 0), Vector(148.004246, 21.903058, 0)),
    Part.LineSegment(Vector(148.004246, 21.903058, 0), Vector(114.440261, -18.096942, 0)),
    Part.LineSegment(Vector(114.440261, -18.096942, 0), Vector(80.802092, -18.096942, 0)),
], False)
sketch14.addConstraint([
    Sketcher.Constraint("Coincident", 0, 2, 1, 1),
    Sketcher.Constraint("Coincident", 1, 2, 2, 1),
    Sketcher.Constraint("Coincident", 2, 2, 3, 1),
    Sketcher.Constraint("Coincident", 3, 2, 0, 1),
    Sketcher.Constraint("Vertical", 0),
    Sketcher.Constraint("Horizontal", 1),
    Sketcher.Constraint("Horizontal", 3),
    Sketcher.Constraint("DistanceY", 0, 1, 0, 2, Q("40 mm")),
    Sketcher.Constraint("Angle", 2, Q("-130 deg")),
    Sketcher.Constraint("DistanceX", 3, 2, 3, 1, Q("33.638169 mm")),
    Sketcher.Constraint("DistanceY", -1, 1, 0, 2, Q("21.903058 mm")),
    Sketcher.Constraint("DistanceX", -1, 1, 2, 2, Q("114.440261 mm")),
])
pocket13 = doc.addObject("PartDesign::Pocket", "Pocket012")
body.addObject(pocket13)
pocket13.Profile = sketch14
pocket13.Length = 48.75
pocket13.Reversed = True

sketch15 = doc.addObject("Sketcher::SketchObject", "Sketch014")
body.addObject(sketch15)
sketch15.AttachmentSupport = (doc.XY_Plane, [""])
sketch15.MapMode = "FlatFace"
sketch15.AttachmentOffset = App.Placement(Vector(0, 0, 53.75), App.Rotation())
sketch15.addGeometry([
    Part.LineSegment(Vector(70.802092, 75.903058, 0), Vector(134.245946, 75.903058, 0)),
    Part.LineSegment(Vector(134.245946, 75.903058, 0), Vector(172.42498, 121.403058, 0)),
    Part.LineSegment(Vector(172.42498, 121.403058, 0), Vector(70.802092, 121.403058, 0)),
    Part.LineSegment(Vector(70.802092, 121.403058, 0), Vector(70.802092, 75.903058, 0)),
], False)
sketch15.addConstraint([
    Sketcher.Constraint("Coincident", 0, 2, 1, 1),
    Sketcher.Constraint("Coincident", 1, 2, 2, 1),
    Sketcher.Constraint("Coincident", 2, 2, 3, 1),
    Sketcher.Constraint("Coincident", 3, 2, 0, 1),
    Sketcher.Constraint("Horizontal", 0),
    Sketcher.Constraint("Horizontal", 2),
    Sketcher.Constraint("Vertical", 3),
    Sketcher.Constraint("Angle", 1, Q("50 deg")),
    Sketcher.Constraint("DistanceY", 3, 2, 3, 1, Q("45.5 mm")),
    Sketcher.Constraint("DistanceX", 0, 1, 0, 2, Q("63.443854 mm")),
    Sketcher.Constraint("DistanceY", -1, 1, 0, 2, Q("75.903058 mm")),
    Sketcher.Constraint("DistanceX", -1, 1, 1, 2, Q("172.42498 mm")),
])
pocket14 = doc.addObject("PartDesign::Pocket", "Pocket013")
body.addObject(pocket14)
pocket14.Profile = sketch15
pocket14.Length = 5

sketch16 = doc.addObject("Sketcher::SketchObject", "Sketch015")
body.addObject(sketch16)
sketch16.AttachmentSupport = (doc.XZ_Plane, [""])
sketch16.MapMode = "FlatFace"
sketch16.AttachmentOffset = App.Placement(Vector(0, 0, 24.096942), App.Rotation())
sketch16.addGeometry([
    Part.LineSegment(Vector(11.802092, 102.5, 0), Vector(210.802092, 71.25, 0)),
    Part.LineSegment(Vector(210.802092, 71.25, 0), Vector(210.802092, 102.5, 0)),
    Part.LineSegment(Vector(210.802092, 102.5, 0), Vector(11.802092, 102.5, 0)),
], False)
sketch16.addConstraint([
    Sketcher.Constraint("Coincident", 0, 2, 1, 1),
    Sketcher.Constraint("Coincident", 1, 2, 2, 1),
    Sketcher.Constraint("Coincident", 2, 2, 0, 1),
    Sketcher.Constraint("Vertical", 1),
    Sketcher.Constraint("Horizontal", 2),
    Sketcher.Constraint("DistanceX", 2, 2, 2, 1, Q("199 mm")),
    Sketcher.Constraint("DistanceY", 1, 1, 1, 2, Q("31.25 mm")),
    Sketcher.Constraint("DistanceY", -1, 1, 1, 2, Q("102.5 mm")),
    Sketcher.Constraint("DistanceX", -1, 1, 0, 2, Q("210.802092 mm")),
])
pocket15 = doc.addObject("PartDesign::Pocket", "Pocket014")
body.addObject(pocket15)
pocket15.Profile = sketch16
pocket15.Length = 105

sketch17 = doc.addObject("Sketcher::SketchObject", "Sketch016")
body.addObject(sketch17)
sketch17.AttachmentSupport = (doc.XY_Plane, [""])
sketch17.MapMode = "FlatFace"
sketch17.addGeometry([
    Part.Circle(Vector(180.802092, 25.903058, 0), Vector(0, 0, 1), 5),
    Part.Circle(Vector(70.802092, -14.096942, 0), Vector(0, 0, 1), 5),
], False)
sketch17.addConstraint([
    Sketcher.Constraint("Equal", 0, 1),
    Sketcher.Constraint("Diameter", 0, Q("10 mm")),
    Sketcher.Constraint("DistanceX", 1, 3, 0, 3, Q("110 mm")),
    Sketcher.Constraint("DistanceY", 1, 3, 0, 3, Q("40 mm")),
    Sketcher.Constraint("DistanceY", -1, 1, 0, 3, Q("25.903058 mm")),
    Sketcher.Constraint("DistanceX", -1, 1, 0, 3, Q("180.802092 mm")),
])
pocket16 = doc.addObject("PartDesign::Pocket", "Pocket015")
body.addObject(pocket16)
pocket16.Profile = sketch17
pocket16.Length = 105
pocket16.Reversed = True

sketch18 = doc.addObject("Sketcher::SketchObject", "Sketch017")
body.addObject(sketch18)
sketch18.AttachmentSupport = (doc.XZ_Plane, [""])
sketch18.MapMode = "FlatFace"
sketch18.AttachmentOffset = App.Placement(Vector(0, 0, 24.096942), App.Rotation())
sketch18.addGeometry([
    Part.LineSegment(Vector(11.802092, 0, 0), Vector(210.802092, 0, 0)),
    Part.LineSegment(Vector(210.802092, 0, 0), Vector(210.802092, 31.25, 0)),
    Part.LineSegment(Vector(210.802092, 31.25, 0), Vector(11.802092, 0, 0)),
], False)
sketch18.addConstraint([
    Sketcher.Constraint("Coincident", 0, 2, 1, 1),
    Sketcher.Constraint("Coincident", 1, 2, 2, 1),
    Sketcher.Constraint("Coincident", 2, 2, 0, 1),
    Sketcher.Constraint("Horizontal", 0),
    Sketcher.Constraint("Vertical", 1),
    Sketcher.Constraint("PointOnObject", 0, 2, -1),
    Sketcher.Constraint("DistanceX", 0, 1, 0, 2, Q("199 mm")),
    Sketcher.Constraint("DistanceY", 1, 1, 1, 2, Q("31.25 mm")),
    Sketcher.Constraint("DistanceX", -1, 1, 0, 2, Q("210.802092 mm")),
])
pocket17 = doc.addObject("PartDesign::Pocket", "Pocket016")
body.addObject(pocket17)
pocket17.Profile = sketch18
pocket17.Length = 105
doc.recompute()

fillet = doc.addObject("PartDesign::Fillet", "Fillet")
body.addObject(fillet)
fillet.Base = (pocket17, edges_at(pocket17, [(80.802, -4.097, 72.707)]))
fillet.Radius = 10
doc.recompute()

fillet2 = doc.addObject("PartDesign::Fillet", "Fillet001")
body.addObject(fillet2)
fillet2.Base = (fillet, edges_at(fillet, [(148.004, 21.903, 67.431)]))
fillet2.Radius = 10
doc.recompute()

fillet3 = doc.addObject("PartDesign::Fillet", "Fillet002")
body.addObject(fillet3)
fillet3.Base = (fillet2, edges_at(fillet2, [(170.802, 35.903, 65.641)]))
fillet3.Radius = 10
doc.recompute()

fillet4 = doc.addObject("PartDesign::Fillet", "Fillet003")
body.addObject(fillet4)
fillet4.Base = (fillet3, edges_at(fillet3, [(80.802, -4.097, 29.793)]))
fillet4.Radius = 10
doc.recompute()

fillet5 = doc.addObject("PartDesign::Fillet", "Fillet004")
body.addObject(fillet5)
fillet5.Base = (fillet4, edges_at(fillet4, [(148.004, 21.903, 35.069)]))
fillet5.Radius = 10
doc.recompute()

fillet6 = doc.addObject("PartDesign::Fillet", "Fillet005")
body.addObject(fillet6)
fillet6.Base = (fillet5, edges_at(fillet5, [(170.802, 35.903, 36.859)]))
fillet6.Radius = 10
doc.recompute()

fillet7 = doc.addObject("PartDesign::Fillet", "Fillet006")
body.addObject(fillet7)
fillet7.Base = (fillet6, edges_at(fillet6, [(114.44, -18.097, 32.434)]))
fillet7.Radius = 10
doc.recompute()

fillet8 = doc.addObject("PartDesign::Fillet", "Fillet007")
body.addObject(fillet8)
fillet8.Base = (fillet7, edges_at(fillet7, [(114.44, -18.097, 70.066)]))
fillet8.Radius = 10
doc.recompute()

fillet9 = doc.addObject("PartDesign::Fillet", "Fillet008")
body.addObject(fillet9)
fillet9.Base = (fillet8, edges_at(fillet8, [(134.246, 75.903, 51.25)]))
fillet9.Radius = 10
doc.recompute()

fillet10 = doc.addObject("PartDesign::Fillet", "Fillet009")
body.addObject(fillet10)
fillet10.Base = (fillet9, edges_at(fillet9, [(172.425, 121.403, 51.25)]))
fillet10.Radius = 10
doc.recompute()

fillet11 = doc.addObject("PartDesign::Fillet", "Fillet010")
body.addObject(fillet11)
fillet11.Base = (fillet10, edges_at(fillet10, [(150.802, 15.903, 51.25)]))
fillet11.Radius = 10
doc.recompute()

fillet12 = doc.addObject("PartDesign::Fillet", "Fillet011")
body.addObject(fillet12)
fillet12.Base = (fillet11, edges_at(fillet11, [(117.238, -24.097, 51.25)]))
fillet12.Radius = 10

doc.recompute()
